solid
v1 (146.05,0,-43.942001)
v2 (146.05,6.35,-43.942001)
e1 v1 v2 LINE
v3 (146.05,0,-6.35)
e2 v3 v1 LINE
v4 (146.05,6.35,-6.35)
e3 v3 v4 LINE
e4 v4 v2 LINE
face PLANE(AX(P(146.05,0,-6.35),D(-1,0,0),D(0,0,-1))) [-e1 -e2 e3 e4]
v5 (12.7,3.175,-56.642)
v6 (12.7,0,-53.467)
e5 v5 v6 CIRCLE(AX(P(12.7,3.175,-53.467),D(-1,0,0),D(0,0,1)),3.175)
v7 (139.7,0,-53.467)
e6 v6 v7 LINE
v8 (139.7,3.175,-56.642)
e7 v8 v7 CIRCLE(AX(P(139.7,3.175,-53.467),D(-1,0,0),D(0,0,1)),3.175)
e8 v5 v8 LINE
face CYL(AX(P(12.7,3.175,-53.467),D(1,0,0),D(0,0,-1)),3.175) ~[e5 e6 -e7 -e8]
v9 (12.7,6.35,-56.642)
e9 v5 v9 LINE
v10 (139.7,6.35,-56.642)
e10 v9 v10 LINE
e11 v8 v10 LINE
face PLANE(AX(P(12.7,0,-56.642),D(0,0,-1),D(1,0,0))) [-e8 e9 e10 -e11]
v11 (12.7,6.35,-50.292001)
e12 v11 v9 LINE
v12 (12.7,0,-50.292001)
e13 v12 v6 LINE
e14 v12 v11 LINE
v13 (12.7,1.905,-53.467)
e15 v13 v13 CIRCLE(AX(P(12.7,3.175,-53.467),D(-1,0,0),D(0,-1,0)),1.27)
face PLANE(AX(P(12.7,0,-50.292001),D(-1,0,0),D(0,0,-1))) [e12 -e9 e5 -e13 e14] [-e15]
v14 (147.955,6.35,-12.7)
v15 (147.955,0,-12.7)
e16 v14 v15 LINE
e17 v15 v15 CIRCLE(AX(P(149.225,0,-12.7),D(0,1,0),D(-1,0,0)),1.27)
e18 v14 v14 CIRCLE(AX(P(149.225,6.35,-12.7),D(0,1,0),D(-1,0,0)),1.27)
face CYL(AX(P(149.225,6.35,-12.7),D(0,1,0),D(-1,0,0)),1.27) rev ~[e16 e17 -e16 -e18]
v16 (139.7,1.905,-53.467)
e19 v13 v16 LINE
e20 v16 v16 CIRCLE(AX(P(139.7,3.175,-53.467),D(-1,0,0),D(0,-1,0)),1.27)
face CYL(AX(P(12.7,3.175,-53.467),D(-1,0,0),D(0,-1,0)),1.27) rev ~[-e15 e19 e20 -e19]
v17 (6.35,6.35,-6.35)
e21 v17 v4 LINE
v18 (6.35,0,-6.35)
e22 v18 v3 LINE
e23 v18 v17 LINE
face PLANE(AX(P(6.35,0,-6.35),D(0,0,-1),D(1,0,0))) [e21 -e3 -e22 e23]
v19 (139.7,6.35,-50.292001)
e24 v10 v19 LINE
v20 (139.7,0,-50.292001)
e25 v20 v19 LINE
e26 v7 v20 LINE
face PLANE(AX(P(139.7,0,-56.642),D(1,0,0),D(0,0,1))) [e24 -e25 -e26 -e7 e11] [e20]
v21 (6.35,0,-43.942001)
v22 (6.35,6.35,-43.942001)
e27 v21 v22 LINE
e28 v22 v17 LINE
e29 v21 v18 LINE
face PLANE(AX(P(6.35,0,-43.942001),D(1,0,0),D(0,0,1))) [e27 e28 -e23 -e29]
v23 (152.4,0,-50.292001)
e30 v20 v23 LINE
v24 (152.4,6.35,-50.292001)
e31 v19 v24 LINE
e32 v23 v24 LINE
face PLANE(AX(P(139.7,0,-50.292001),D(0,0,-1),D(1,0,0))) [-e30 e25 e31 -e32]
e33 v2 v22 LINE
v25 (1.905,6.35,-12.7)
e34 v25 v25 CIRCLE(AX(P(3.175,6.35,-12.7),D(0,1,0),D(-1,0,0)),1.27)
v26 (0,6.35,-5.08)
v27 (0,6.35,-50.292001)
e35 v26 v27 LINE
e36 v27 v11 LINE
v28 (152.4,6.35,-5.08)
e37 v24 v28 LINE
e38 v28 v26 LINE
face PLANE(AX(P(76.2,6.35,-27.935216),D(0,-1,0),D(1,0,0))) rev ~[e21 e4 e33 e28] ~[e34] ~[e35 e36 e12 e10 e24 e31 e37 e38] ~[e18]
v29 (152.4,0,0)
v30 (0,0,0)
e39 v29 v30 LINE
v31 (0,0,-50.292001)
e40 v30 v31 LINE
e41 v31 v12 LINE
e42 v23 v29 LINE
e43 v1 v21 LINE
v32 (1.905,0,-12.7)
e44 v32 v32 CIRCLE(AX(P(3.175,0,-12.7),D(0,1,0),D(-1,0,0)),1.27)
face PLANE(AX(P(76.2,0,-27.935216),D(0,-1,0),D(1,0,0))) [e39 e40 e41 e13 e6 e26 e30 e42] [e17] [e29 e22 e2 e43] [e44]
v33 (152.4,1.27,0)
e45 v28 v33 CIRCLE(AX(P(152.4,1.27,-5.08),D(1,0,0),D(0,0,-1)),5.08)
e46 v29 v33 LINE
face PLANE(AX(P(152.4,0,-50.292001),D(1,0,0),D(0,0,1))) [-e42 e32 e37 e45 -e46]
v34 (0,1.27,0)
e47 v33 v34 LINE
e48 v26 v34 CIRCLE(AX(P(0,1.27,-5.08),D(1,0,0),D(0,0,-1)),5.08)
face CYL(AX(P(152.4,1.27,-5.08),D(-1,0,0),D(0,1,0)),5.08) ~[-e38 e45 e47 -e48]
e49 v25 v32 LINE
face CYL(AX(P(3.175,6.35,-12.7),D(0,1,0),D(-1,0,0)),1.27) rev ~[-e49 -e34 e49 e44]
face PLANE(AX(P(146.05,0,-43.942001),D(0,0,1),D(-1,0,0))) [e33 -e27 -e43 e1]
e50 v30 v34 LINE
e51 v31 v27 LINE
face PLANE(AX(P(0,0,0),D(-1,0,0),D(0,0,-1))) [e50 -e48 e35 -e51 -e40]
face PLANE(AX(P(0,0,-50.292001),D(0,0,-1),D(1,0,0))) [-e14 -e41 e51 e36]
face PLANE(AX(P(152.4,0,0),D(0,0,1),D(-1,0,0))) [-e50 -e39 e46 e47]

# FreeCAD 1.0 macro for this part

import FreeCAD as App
import Part
import Sketcher

V = App.Vector
Q = App.Units.Quantity


def edges_at(feature, points):
    """Names of the edges that pass closest to the given points."""
    edges = feature.Shape.Edges
    near = lambda p: min(range(len(edges)), key=lambda i: edges[i].distToShape(Part.Vertex(*p))[0])
    return sorted({f"Edge{near(p) + 1}" for p in points})

doc = App.newDocument("Part")
body = doc.addObject("PartDesign::Body", "Body")

sketch1 = doc.addObject("Sketcher::SketchObject", "Sketch")
body.addObject(sketch1)
sketch1.AttachmentSupport = (doc.XZ_Plane, [""])
sketch1.MapMode = "FlatFace"
sketch1.addGeometry([
    Part.LineSegment(V(152, 0, 0), V(0, 0, 0)),
    Part.LineSegment(V(0, 0, 0), V(0, -50, 0)),
    Part.LineSegment(V(0, -50, 0), V(13, -50, 0)),
    Part.LineSegment(V(13, -50, 0), V(13, -57, 0)),
    Part.LineSegment(V(13, -57, 0), V(140, -57, 0)),
    Part.LineSegment(V(140, -57, 0), V(140, -50, 0)),
    Part.LineSegment(V(140, -50, 0), V(152, -50, 0)),
    Part.LineSegment(V(152, -50, 0), V(152, 0, 0)),
    Part.LineSegment(V(6, -6, 0), V(146, -6, 0)),
    Part.LineSegment(V(146, -6, 0), V(146, -44, 0)),
    Part.LineSegment(V(146, -44, 0), V(6, -44, 0)),
    Part.LineSegment(V(6, -44, 0), V(6, -6, 0)),
], False)
sketch1.addConstraint([
    Sketcher.Constraint("Coincident", 0, 2, 1, 1),
    Sketcher.Constraint("Coincident", 1, 2, 2, 1),
    Sketcher.Constraint("Coincident", 2, 2, 3, 1),
    Sketcher.Constraint("Coincident", 3, 2, 4, 1),
    Sketcher.Constraint("Coincident", 4, 2, 5, 1),
    Sketcher.Constraint("Coincident", 5, 2, 6, 1),
    Sketcher.Constraint("Coincident", 6, 2, 7, 1),
    Sketcher.Constraint("Coincident", 7, 2, 0, 1),
    Sketcher.Constraint("Coincident", 8, 2, 9, 1),
    Sketcher.Constraint("Coincident", 9, 2, 10, 1),
    Sketcher.Constraint("Coincident", 10, 2, 11, 1),
    Sketcher.Constraint("Coincident", 11, 2, 8, 1),
    Sketcher.Constraint("Horizontal", 0),
    Sketcher.Constraint("Vertical", 1),
    Sketcher.Constraint("Horizontal", 2),
    Sketcher.Constraint("Vertical", 3),
    Sketcher.Constraint("Horizontal", 4),
    Sketcher.Constraint("Vertical", 5),
    Sketcher.Constraint("Horizontal", 6),
    Sketcher.Constraint("Vertical", 7),
    Sketcher.Constraint("Horizontal", 8),
    Sketcher.Constraint("Vertical", 9),
    Sketcher.Constraint("Horizontal", 10),
    Sketcher.Constraint("Vertical", 11),
    Sketcher.Constraint("Coincident", 0, 2, -1, 1),
    Sketcher.Constraint("Horizontal", 2, 2, 5, 2),
    Sketcher.Constraint("Equal", 2, 6),
    Sketcher.Constraint("DistanceX", 0, 2, 0, 1, Q("6 in")),
    Sketcher.Constraint("DistanceX", 4, 1, 4, 2, Q("5 in")),
    Sketcher.Constraint("DistanceX", 8, 1, 8, 2, Q("5.5 in")),
    Sketcher.Constraint("DistanceY", 1, 2, 1, 1, Q("1.98 in")),
    Sketcher.Constraint("DistanceY", 3, 2, 3, 1, Q("0.25 in")),
    Sketcher.Constraint("DistanceY", 9, 2, 9, 1, Q("1.48 in")),
    Sketcher.Constraint("DistanceY", 4, 2, 9, 2, Q("0.5 in")),
    Sketcher.Constraint("DistanceX", -1, 1, 8, 2, Q("5.75 in")),
])
pad1 = doc.addObject("PartDesign::Pad", "Pad")
body.addObject(pad1)
pad1.Profile = sketch1
pad1.Length = Q("0.25 in")
pad1.Reversed = True
doc.recompute()

fillet = doc.addObject("PartDesign::Fillet", "Fillet")
body.addObject(fillet)
fillet.Base = (pad1, edges_at(pad1, [(76.2, 0, -56.642)]))
fillet.Radius = Q("0.125 in")

sketch2 = doc.addObject("Sketcher::SketchObject", "Sketch001")
body.addObject(sketch2)
sketch2.AttachmentSupport = (doc.YZ_Plane, [""])
sketch2.MapMode = "FlatFace"
sketch2.AttachmentOffset = App.Placement(V(0, 0, 0.5 * 25.4), App.Rotation())
sketch2.addGeometry(Part.Circle(V(3.2, -53.5, 0), V(0, 0, 1), 1.3), False)
sketch2.addConstraint([
    Sketcher.Constraint("Diameter", 0, Q("0.1 in")),
    Sketcher.Constraint("DistanceX", -1, 1, 0, 3, Q("0.125 in")),
    Sketcher.Constraint("DistanceY", 0, 3, -1, 1, Q("2.105 in")),
])
pocket1 = doc.addObject("PartDesign::Pocket", "Pocket")
body.addObject(pocket1)
pocket1.Profile = sketch2
pocket1.Type = "ThroughAll"
pocket1.Reversed = True
doc.recompute()

fillet2 = doc.addObject("PartDesign::Fillet", "Fillet001")
body.addObject(fillet2)
fillet2.Base = (pocket1, edges_at(pocket1, [(76.2, 6.35, 0)]))
fillet2.Radius = Q("0.2 in")

sketch3 = doc.addObject("Sketcher::SketchObject", "Sketch002")
body.addObject(sketch3)
sketch3.AttachmentSupport = (doc.XZ_Plane, [""])
sketch3.MapMode = "FlatFace"
sketch3.AttachmentOffset = App.Placement(V(0, 0, -0.25 * 25.4), App.Rotation())
sketch3.addGeometry([
    Part.Circle(V(149.2, -12.7, 0), V(0, 0, 1), 1.3),
    Part.Circle(V(3.2, -12.7, 0), V(0, 0, 1), 1.3),
], False)
sketch3.addConstraint([
    Sketcher.Constraint("Equal", 0, 1),
    Sketcher.Constraint("Horizontal", 0, 3, 1, 3),
    Sketcher.Constraint("Diameter", 0, Q("0.1 in")),
    Sketcher.Constraint("DistanceY", 0, 3, -1, 1, Q("0.5 in")),
    Sketcher.Constraint("DistanceX", 1, 3, 0, 3, Q("5.75 in")),
    Sketcher.Constraint("DistanceX", -1, 1, 0, 3, Q("5.875 in")),
])
pocket2 = doc.addObject("PartDesign::Pocket", "Pocket001")
body.addObject(pocket2)
pocket2.Profile = sketch3
pocket2.Type = "ThroughAll"
pocket2.Reversed = True

doc.recompute()
